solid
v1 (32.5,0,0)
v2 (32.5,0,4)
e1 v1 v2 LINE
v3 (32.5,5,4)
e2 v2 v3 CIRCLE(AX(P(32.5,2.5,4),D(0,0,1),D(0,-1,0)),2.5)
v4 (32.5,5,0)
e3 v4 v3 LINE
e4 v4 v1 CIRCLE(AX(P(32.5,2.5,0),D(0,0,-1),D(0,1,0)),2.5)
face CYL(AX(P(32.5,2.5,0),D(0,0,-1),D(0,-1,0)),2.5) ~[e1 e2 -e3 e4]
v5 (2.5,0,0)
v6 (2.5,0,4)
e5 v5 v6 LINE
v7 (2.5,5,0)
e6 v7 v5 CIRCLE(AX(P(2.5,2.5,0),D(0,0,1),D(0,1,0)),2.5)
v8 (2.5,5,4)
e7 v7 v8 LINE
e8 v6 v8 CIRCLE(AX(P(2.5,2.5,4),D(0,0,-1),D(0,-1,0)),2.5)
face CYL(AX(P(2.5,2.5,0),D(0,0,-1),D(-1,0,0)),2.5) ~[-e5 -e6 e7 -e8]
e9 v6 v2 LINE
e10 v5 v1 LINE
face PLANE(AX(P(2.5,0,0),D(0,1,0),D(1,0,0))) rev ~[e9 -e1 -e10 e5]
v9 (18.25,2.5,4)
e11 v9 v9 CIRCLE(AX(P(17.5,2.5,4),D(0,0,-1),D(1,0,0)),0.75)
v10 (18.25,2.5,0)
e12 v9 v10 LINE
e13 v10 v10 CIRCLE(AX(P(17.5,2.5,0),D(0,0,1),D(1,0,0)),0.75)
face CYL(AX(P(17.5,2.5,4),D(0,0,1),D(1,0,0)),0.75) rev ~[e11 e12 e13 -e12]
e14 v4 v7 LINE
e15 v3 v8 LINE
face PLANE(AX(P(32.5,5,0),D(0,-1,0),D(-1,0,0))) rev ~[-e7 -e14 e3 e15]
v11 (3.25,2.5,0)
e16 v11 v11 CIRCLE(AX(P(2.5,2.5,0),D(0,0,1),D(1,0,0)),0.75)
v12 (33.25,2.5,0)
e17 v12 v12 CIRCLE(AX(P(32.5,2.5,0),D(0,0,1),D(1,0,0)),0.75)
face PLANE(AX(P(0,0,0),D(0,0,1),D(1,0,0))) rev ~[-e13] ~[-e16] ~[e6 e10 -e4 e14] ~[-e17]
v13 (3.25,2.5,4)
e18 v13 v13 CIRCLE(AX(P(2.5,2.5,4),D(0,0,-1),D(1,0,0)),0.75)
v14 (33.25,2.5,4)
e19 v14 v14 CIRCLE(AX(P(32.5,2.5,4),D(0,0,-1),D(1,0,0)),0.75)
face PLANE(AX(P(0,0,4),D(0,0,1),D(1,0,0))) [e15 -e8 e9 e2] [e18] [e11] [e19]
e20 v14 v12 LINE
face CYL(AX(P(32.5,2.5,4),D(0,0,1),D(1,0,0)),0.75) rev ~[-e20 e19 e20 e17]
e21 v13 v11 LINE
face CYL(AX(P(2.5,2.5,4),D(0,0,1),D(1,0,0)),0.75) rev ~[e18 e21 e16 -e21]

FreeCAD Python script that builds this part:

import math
import FreeCAD as App
import Part
import Sketcher

V = App.Vector

doc = App.newDocument("Part")
body = doc.addObject("PartDesign::Body", "Body")

sketch1 = body.newObject("Sketcher::SketchObject", "Sketch")
sketch1.AttachmentSupport = (doc.getObject("XY_Plane"), [""])
sketch1.MapMode = "FlatFace"
sketch1.addGeometry(Part.ArcOfCircle(Part.Circle(V(2.5, 2.5, 0), V(0, 0, 1), 2.5), math.radians(90), math.radians(270)), False)
sketch1.addGeometry(Part.LineSegment(V(2.5, 0, 0), V(32.5, 0, 0)), False)
sketch1.addGeometry(Part.ArcOfCircle(Part.Circle(V(32.5, 2.5, 0), V(0, 0, 1), 2.5), math.radians(-90), math.radians(90)), False)
sketch1.addGeometry(Part.LineSegment(V(32.5, 5, 0), V(2.5, 5, 0)), False)
sketch1.addConstraint(Sketcher.Constraint("Tangent", 0, 2, 1, 1))
sketch1.addConstraint(Sketcher.Constraint("Tangent", 1, 2, 2, 1))
sketch1.addConstraint(Sketcher.Constraint("Tangent", 2, 2, 3, 1))
sketch1.addConstraint(Sketcher.Constraint("Tangent", 3, 2, 0, 1))
sketch1.addConstraint(Sketcher.Constraint("Horizontal", 1))
sketch1.addConstraint(Sketcher.Constraint("Horizontal", 3))
sketch1.addConstraint(Sketcher.Constraint("PointOnObject", 0, 2, -1))
sketch1.addConstraint(Sketcher.Constraint("Radius", 0, 2.5))
sketch1.addConstraint(Sketcher.Constraint("DistanceX", -1, 1, 0, 3, 2.5))
sketch1.addConstraint(Sketcher.Constraint("DistanceX", 1, 1, 1, 2, 30.0))
pad1 = body.newObject("PartDesign::Pad", "Pad")
pad1.Profile = sketch1
pad1.Length = 4

sketch2 = body.newObject("Sketcher::SketchObject", "Sketch001")
sketch2.AttachmentSupport = (doc.getObject("XY_Plane"), [""])
sketch2.MapMode = "FlatFace"
sketch2.AttachmentOffset = App.Placement(V(0, 0, 4), App.Rotation())
sketch2.addGeometry(Part.Circle(V(17.5, 2.5, 0), V(0, 0, 1), 0.8), False)
sketch2.addGeometry(Part.Circle(V(32.5, 2.5, 0), V(0, 0, 1), 0.8), False)
sketch2.addGeometry(Part.Circle(V(2.5, 2.5, 0), V(0, 0, 1), 0.8), False)
sketch2.addConstraint(Sketcher.Constraint("Equal", 0, 1))
sketch2.addConstraint(Sketcher.Constraint("Equal", 1, 2))
sketch2.addConstraint(Sketcher.Constraint("Horizontal", 0, 3, 1, 3))
sketch2.addConstraint(Sketcher.Constraint("Horizontal", 1, 3, 2, 3))
sketch2.addConstraint(Sketcher.Constraint("Diameter", 0, 1.5))
sketch2.addConstraint(Sketcher.Constraint("DistanceX", -1, 1, 0, 3, 17.5))
sketch2.addConstraint(Sketcher.Constraint("DistanceY", -1, 1, 0, 3, 2.5))
sketch2.addConstraint(Sketcher.Constraint("DistanceX", -1, 1, 2, 3, 2.5))
sketch2.addConstraint(Sketcher.Constraint("DistanceX", 0, 3, 1, 3, 15.0))
pocket1 = body.newObject("PartDesign::Pocket", "Pocket")
pocket1.Profile = sketch2
pocket1.Length = 5

doc.recompute()
